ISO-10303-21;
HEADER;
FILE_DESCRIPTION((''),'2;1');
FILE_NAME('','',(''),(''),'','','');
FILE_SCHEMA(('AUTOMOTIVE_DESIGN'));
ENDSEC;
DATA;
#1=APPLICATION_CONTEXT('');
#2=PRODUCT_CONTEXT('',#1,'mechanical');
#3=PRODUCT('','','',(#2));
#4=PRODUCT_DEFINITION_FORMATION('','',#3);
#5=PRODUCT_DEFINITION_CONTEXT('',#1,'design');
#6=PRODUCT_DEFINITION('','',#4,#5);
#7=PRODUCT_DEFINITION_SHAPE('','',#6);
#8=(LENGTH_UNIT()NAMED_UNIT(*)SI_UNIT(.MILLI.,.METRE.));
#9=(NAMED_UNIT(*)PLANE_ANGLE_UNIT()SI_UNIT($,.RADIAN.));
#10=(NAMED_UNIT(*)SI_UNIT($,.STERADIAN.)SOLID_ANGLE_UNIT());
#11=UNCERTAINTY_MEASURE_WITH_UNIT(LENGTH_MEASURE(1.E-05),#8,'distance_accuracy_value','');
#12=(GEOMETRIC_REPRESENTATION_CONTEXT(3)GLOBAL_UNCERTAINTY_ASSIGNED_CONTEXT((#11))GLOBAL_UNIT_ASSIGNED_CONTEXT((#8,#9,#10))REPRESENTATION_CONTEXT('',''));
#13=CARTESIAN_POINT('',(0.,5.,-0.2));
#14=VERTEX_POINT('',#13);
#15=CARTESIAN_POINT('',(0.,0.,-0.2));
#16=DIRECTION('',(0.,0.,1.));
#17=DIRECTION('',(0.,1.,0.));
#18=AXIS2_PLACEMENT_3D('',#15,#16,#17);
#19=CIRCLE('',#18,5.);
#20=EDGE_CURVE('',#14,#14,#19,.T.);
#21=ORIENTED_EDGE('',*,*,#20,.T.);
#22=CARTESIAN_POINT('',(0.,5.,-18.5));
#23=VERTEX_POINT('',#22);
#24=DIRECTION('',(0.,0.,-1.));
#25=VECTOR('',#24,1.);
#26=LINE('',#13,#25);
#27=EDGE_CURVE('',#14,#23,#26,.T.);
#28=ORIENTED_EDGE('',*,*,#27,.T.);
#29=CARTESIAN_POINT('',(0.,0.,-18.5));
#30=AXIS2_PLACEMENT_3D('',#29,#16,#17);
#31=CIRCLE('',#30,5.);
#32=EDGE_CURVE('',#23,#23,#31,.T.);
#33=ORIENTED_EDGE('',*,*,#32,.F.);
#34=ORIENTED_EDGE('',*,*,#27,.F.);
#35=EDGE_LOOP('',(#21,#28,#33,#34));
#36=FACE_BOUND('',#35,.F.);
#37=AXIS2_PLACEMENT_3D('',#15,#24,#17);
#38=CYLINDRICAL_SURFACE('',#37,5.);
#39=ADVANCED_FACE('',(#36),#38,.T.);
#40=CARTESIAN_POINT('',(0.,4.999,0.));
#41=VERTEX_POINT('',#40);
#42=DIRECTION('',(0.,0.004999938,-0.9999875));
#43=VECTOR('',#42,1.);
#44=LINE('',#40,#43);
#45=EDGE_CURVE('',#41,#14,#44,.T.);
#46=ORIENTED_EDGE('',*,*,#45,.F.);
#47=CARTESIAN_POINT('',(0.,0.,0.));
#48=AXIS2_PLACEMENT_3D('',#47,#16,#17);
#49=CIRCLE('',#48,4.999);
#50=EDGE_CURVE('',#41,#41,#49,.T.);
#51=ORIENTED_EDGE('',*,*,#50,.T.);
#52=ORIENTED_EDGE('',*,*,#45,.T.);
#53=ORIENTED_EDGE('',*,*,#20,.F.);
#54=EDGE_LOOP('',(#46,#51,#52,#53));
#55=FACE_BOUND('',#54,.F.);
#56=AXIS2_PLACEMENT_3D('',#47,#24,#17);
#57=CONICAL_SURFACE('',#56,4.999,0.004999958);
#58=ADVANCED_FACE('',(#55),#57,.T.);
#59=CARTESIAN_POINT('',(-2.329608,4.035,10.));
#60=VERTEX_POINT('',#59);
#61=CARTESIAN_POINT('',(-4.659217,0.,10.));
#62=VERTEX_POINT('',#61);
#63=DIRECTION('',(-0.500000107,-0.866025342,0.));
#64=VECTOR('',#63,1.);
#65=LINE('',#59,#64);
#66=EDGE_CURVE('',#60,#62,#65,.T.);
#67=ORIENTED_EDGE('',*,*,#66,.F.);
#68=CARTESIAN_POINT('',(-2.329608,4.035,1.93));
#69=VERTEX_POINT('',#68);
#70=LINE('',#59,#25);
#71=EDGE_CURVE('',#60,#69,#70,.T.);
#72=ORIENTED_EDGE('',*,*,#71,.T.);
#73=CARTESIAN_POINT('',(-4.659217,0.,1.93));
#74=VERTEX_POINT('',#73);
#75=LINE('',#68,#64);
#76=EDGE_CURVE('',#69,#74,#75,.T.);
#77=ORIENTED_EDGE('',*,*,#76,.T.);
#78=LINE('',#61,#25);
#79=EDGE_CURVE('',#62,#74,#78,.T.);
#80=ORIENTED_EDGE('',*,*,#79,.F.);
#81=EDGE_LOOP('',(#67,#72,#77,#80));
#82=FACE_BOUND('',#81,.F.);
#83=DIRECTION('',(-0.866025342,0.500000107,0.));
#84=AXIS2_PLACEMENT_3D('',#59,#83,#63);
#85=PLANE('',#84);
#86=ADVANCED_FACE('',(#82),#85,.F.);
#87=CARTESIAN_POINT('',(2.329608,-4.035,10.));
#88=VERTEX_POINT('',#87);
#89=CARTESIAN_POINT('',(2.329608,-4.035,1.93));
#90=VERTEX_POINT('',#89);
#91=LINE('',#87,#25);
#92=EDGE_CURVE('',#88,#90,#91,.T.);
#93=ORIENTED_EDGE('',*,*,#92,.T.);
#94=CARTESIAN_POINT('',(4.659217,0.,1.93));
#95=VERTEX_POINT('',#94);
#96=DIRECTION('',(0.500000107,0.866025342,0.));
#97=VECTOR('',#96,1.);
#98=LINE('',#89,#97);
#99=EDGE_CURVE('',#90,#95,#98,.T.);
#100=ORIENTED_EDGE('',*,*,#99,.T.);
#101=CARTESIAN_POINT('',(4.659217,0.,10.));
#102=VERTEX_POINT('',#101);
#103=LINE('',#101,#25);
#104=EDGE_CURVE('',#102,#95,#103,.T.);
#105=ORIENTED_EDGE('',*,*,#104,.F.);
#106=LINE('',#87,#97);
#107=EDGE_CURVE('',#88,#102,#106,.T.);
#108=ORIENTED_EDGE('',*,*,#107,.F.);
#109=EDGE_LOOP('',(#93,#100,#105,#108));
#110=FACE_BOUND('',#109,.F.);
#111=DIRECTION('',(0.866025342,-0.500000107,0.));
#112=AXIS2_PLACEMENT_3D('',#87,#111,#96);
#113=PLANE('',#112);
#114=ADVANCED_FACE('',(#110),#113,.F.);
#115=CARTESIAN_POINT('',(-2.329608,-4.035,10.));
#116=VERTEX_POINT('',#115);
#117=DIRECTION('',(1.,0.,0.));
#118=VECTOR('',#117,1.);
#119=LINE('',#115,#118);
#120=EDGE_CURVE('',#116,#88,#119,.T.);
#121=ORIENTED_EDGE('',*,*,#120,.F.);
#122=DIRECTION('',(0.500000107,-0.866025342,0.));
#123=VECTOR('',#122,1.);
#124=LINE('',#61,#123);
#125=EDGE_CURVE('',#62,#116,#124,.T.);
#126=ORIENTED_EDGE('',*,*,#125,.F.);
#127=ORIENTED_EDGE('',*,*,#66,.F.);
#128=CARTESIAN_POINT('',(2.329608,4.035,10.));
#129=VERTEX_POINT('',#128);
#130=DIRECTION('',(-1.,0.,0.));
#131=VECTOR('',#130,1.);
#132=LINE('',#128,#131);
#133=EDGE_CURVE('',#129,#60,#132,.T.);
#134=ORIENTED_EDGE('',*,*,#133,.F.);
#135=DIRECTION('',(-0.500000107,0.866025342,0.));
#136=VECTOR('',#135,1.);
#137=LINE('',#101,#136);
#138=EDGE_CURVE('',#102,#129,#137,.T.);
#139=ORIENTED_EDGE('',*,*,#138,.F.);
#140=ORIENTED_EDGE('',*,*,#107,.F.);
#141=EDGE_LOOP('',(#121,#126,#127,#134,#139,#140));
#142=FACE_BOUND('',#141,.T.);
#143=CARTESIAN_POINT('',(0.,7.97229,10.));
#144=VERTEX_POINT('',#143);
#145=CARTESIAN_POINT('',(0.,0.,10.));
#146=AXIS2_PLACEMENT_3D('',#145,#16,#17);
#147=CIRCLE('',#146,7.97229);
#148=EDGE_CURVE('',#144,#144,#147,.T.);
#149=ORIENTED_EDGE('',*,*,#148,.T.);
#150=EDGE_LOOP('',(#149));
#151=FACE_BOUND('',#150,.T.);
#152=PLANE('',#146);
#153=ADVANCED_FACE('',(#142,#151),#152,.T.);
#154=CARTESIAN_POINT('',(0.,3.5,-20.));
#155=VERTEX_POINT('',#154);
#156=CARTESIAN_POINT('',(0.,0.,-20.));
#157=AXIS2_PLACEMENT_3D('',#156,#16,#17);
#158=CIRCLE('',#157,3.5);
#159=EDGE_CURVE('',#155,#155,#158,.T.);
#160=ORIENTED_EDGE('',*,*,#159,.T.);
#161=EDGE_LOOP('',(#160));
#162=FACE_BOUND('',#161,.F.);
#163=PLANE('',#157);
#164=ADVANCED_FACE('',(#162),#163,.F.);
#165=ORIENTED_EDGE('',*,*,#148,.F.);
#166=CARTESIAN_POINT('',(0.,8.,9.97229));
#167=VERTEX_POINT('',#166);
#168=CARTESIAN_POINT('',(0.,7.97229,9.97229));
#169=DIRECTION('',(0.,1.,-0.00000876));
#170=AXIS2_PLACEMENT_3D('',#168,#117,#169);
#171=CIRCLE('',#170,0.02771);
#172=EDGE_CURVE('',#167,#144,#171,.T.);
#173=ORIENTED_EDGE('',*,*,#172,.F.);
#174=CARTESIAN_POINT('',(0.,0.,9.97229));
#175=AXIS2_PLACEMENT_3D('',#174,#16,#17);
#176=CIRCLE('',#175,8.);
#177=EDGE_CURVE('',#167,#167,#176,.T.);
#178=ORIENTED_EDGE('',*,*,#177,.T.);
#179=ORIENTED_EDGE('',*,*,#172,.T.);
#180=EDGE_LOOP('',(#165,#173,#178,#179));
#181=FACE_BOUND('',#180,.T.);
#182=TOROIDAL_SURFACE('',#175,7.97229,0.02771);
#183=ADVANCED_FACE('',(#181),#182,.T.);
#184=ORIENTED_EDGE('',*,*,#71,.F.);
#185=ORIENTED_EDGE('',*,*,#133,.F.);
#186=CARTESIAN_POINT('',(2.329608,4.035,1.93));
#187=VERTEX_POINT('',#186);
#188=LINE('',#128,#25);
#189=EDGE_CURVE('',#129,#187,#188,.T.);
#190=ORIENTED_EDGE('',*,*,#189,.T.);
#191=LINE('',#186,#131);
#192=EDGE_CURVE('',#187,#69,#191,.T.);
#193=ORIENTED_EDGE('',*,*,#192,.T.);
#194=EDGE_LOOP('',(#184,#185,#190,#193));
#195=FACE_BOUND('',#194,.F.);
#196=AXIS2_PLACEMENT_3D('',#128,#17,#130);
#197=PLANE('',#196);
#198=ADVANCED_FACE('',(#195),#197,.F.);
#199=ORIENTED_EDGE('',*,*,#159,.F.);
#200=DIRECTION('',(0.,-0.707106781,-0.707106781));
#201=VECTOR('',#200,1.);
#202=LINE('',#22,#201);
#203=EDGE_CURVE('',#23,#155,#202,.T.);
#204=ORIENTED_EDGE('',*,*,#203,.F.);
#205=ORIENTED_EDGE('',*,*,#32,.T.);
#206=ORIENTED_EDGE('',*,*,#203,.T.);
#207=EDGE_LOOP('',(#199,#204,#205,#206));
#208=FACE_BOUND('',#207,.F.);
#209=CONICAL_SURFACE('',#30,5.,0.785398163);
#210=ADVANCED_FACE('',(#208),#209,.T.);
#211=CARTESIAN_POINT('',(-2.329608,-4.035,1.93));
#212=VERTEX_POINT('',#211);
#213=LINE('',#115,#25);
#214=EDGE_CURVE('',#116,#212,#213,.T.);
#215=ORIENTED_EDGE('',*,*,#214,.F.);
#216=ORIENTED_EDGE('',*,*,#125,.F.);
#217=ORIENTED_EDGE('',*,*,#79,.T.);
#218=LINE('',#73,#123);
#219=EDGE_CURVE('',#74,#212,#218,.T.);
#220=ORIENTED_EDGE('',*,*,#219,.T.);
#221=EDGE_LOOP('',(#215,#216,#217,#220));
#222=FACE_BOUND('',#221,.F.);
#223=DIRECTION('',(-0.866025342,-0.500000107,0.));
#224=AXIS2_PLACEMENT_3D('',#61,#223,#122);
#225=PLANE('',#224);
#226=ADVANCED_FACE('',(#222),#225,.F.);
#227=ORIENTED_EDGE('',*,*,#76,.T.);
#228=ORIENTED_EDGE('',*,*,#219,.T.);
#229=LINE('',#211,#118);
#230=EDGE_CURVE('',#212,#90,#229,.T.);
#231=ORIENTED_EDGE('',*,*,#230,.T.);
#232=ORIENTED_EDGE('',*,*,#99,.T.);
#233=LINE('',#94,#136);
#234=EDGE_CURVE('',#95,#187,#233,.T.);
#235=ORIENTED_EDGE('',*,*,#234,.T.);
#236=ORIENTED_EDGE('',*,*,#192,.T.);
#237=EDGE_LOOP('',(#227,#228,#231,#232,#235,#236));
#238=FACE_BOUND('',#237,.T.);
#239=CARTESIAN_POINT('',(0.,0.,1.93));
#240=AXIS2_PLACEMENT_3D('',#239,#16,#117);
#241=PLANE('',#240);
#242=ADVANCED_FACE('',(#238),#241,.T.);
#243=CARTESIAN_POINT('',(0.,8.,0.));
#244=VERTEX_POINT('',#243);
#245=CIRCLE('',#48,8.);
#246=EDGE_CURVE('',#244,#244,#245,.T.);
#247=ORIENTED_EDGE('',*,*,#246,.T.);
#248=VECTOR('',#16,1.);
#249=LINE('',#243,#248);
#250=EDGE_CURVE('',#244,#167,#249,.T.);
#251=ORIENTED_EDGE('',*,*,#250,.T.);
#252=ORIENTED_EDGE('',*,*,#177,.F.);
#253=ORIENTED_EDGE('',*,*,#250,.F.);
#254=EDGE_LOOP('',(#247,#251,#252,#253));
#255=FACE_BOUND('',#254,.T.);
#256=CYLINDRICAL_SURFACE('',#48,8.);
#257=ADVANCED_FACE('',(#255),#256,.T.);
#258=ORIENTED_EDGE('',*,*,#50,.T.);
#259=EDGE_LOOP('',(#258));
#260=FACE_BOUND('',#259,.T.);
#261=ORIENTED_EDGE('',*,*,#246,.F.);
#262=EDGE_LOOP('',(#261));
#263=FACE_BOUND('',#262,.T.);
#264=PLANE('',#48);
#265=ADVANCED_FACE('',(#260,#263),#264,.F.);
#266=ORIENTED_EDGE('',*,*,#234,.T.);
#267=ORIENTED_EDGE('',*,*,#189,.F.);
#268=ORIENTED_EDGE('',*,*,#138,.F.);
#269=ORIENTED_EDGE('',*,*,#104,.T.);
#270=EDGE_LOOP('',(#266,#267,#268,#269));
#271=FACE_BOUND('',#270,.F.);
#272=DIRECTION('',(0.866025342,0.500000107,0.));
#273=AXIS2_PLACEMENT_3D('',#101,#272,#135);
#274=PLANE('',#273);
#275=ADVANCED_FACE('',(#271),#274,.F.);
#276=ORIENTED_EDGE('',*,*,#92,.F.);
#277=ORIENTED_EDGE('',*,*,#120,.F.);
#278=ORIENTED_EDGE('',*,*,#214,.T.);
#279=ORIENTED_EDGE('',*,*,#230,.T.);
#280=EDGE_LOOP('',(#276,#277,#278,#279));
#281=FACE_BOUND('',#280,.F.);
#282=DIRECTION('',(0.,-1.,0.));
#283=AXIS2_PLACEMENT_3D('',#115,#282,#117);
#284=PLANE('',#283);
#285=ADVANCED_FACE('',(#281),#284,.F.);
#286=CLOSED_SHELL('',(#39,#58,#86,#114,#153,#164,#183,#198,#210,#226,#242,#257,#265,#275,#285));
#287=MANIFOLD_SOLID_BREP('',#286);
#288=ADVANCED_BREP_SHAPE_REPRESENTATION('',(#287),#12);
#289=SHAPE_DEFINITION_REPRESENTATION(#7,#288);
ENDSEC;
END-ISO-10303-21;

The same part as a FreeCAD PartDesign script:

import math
import FreeCAD as App
import Part
import Sketcher

V = App.Vector
Q = App.Units.Quantity

doc = App.newDocument("Part")
body = doc.addObject("PartDesign::Body", "Body")

# Sketch on YZ plane
sketch1 = body.newObject("Sketcher::SketchObject", "Sketch")
sketch1.AttachmentSupport = (doc.getObject("YZ_Plane"), [""])
sketch1.MapMode = "FlatFace"
sketch1.addGeometry(Part.LineSegment(V(4.999, 0, 0), V(8, 0, 0)), False)
sketch1.addGeometry(Part.LineSegment(V(8, 0, 0), V(8, 9.972, 0)), False)
sketch1.addGeometry(Part.ArcOfCircle(Part.Circle(V(7.972, 9.972, 0), V(0, 0, 1), 0.028), math.radians(0), math.radians(90)), False)
sketch1.addGeometry(Part.LineSegment(V(7.972, 10, 0), V(0, 10, 0)), False)
sketch1.addGeometry(Part.LineSegment(V(0, 10, 0), V(0, -20, 0)), False)
sketch1.addGeometry(Part.LineSegment(V(0, -20, 0), V(3.5, -20, 0)), False)
sketch1.addGeometry(Part.LineSegment(V(3.5, -20, 0), V(5, -18.5, 0)), False)
sketch1.addGeometry(Part.LineSegment(V(5, -18.5, 0), V(5, -0.2, 0)), False)
sketch1.addGeometry(Part.LineSegment(V(5, -0.2, 0), V(4.999, 0, 0)), False)
sketch1.addConstraint(Sketcher.Constraint("Coincident", 0, 2, 1, 1))
sketch1.addConstraint(Sketcher.Constraint("Coincident", 1, 2, 2, 1))
sketch1.addConstraint(Sketcher.Constraint("Coincident", 2, 2, 3, 1))
sketch1.addConstraint(Sketcher.Constraint("Coincident", 3, 2, 4, 1))
sketch1.addConstraint(Sketcher.Constraint("Coincident", 4, 2, 5, 1))
sketch1.addConstraint(Sketcher.Constraint("Coincident", 5, 2, 6, 1))
sketch1.addConstraint(Sketcher.Constraint("Coincident", 6, 2, 7, 1))
sketch1.addConstraint(Sketcher.Constraint("Coincident", 7, 2, 8, 1))
sketch1.addConstraint(Sketcher.Constraint("Coincident", 8, 2, 0, 1))
sketch1.addConstraint(Sketcher.Constraint("Horizontal", 0))
sketch1.addConstraint(Sketcher.Constraint("Vertical", 1))
sketch1.addConstraint(Sketcher.Constraint("Horizontal", 3))
sketch1.addConstraint(Sketcher.Constraint("Vertical", 4))
sketch1.addConstraint(Sketcher.Constraint("Horizontal", 5))
sketch1.addConstraint(Sketcher.Constraint("Vertical", 7))
sketch1.addConstraint(Sketcher.Constraint("PointOnObject", 0, 2, -1))
sketch1.addConstraint(Sketcher.Constraint("PointOnObject", 3, 2, -2))
sketch1.addConstraint(Sketcher.Constraint("Horizontal", 2, 3, 1, 2))
sketch1.addConstraint(Sketcher.Constraint("DistanceY", 4, 2, 4, 1, 30.0))
sketch1.addConstraint(Sketcher.Constraint("Angle", 6, Q("45 deg")))
sketch1.addConstraint(Sketcher.Constraint("DistanceX", 5, 1, 5, 2, 3.5))
sketch1.addConstraint(Sketcher.Constraint("DistanceY", 7, 1, 7, 2, 18.3))
sketch1.addConstraint(Sketcher.Constraint("DistanceX", -1, 1, 0, 2, 8.0))
sketch1.addConstraint(Sketcher.Constraint("DistanceY", -1, 1, 2, 2, 10.0))
sketch1.addConstraint(Sketcher.Constraint("DistanceX", -1, 1, 6, 2, 5.0))
sketch1.addConstraint(Sketcher.Constraint("DistanceX", 0, 1, 0, 2, 3.001))
sketch1.addConstraint(Sketcher.Constraint("Radius", 2, 0.02771))
sketch1.addConstraint(Sketcher.Constraint("DistanceX", 3, 2, 3, 1, 7.97229))
revolution = body.newObject("PartDesign::Revolution", "Revolution")
revolution.Profile = sketch1
revolution.ReferenceAxis = (sketch1, ["V_Axis"])
revolution.Angle = 360

# Sketch on XY plane
sketch2 = body.newObject("Sketcher::SketchObject", "Sketch001")
sketch2.AttachmentSupport = (doc.getObject("XY_Plane"), [""])
sketch2.MapMode = "FlatFace"
sketch2.AttachmentOffset = App.Placement(V(0, 0, 10), App.Rotation())
sketch2.addGeometry(Part.LineSegment(V(4.7, 0, 0), V(2.3, 4, 0)), False)
sketch2.addGeometry(Part.LineSegment(V(2.3, 4, 0), V(-2.3, 4, 0)), False)
sketch2.addGeometry(Part.LineSegment(V(-2.3, 4, 0), V(-4.7, 0, 0)), False)
sketch2.addGeometry(Part.LineSegment(V(-4.7, 0, 0), V(-2.3, -4, 0)), False)
sketch2.addGeometry(Part.LineSegment(V(-2.3, -4, 0), V(2.3, -4, 0)), False)
sketch2.addGeometry(Part.LineSegment(V(2.3, -4, 0), V(4.7, 0, 0)), False)
sketch2.addConstraint(Sketcher.Constraint("Coincident", 0, 2, 1, 1))
sketch2.addConstraint(Sketcher.Constraint("Coincident", 1, 2, 2, 1))
sketch2.addConstraint(Sketcher.Constraint("Coincident", 2, 2, 3, 1))
sketch2.addConstraint(Sketcher.Constraint("Coincident", 3, 2, 4, 1))
sketch2.addConstraint(Sketcher.Constraint("Coincident", 4, 2, 5, 1))
sketch2.addConstraint(Sketcher.Constraint("Coincident", 5, 2, 0, 1))
sketch2.addConstraint(Sketcher.Constraint("Horizontal", 1))
sketch2.addConstraint(Sketcher.Constraint("Horizontal", 4))
sketch2.addConstraint(Sketcher.Constraint("Symmetric", 0, 2, 3, 2, -1, 1))
sketch2.addConstraint(Sketcher.Constraint("Symmetric", 2, 2, 5, 2, -1, 1))
sketch2.addConstraint(Sketcher.Constraint("PointOnObject", 2, 2, -1))
sketch2.addConstraint(Sketcher.Constraint("Parallel", 2, 5))
sketch2.addConstraint(Sketcher.Constraint("Vertical", 1, 2, 3, 2))
sketch2.addConstraint(Sketcher.Constraint("Angle", 0, Q("120.000007 deg")))
sketch2.addConstraint(Sketcher.Constraint("DistanceY", 3, 2, 1, 2, 8.07))
sketch2.addConstraint(Sketcher.Constraint("DistanceX", 1, 2, 1, 1, 4.659216))
pocket1 = body.newObject("PartDesign::Pocket", "Pocket")
pocket1.Profile = sketch2
pocket1.Length = 8.07

doc.recompute()
